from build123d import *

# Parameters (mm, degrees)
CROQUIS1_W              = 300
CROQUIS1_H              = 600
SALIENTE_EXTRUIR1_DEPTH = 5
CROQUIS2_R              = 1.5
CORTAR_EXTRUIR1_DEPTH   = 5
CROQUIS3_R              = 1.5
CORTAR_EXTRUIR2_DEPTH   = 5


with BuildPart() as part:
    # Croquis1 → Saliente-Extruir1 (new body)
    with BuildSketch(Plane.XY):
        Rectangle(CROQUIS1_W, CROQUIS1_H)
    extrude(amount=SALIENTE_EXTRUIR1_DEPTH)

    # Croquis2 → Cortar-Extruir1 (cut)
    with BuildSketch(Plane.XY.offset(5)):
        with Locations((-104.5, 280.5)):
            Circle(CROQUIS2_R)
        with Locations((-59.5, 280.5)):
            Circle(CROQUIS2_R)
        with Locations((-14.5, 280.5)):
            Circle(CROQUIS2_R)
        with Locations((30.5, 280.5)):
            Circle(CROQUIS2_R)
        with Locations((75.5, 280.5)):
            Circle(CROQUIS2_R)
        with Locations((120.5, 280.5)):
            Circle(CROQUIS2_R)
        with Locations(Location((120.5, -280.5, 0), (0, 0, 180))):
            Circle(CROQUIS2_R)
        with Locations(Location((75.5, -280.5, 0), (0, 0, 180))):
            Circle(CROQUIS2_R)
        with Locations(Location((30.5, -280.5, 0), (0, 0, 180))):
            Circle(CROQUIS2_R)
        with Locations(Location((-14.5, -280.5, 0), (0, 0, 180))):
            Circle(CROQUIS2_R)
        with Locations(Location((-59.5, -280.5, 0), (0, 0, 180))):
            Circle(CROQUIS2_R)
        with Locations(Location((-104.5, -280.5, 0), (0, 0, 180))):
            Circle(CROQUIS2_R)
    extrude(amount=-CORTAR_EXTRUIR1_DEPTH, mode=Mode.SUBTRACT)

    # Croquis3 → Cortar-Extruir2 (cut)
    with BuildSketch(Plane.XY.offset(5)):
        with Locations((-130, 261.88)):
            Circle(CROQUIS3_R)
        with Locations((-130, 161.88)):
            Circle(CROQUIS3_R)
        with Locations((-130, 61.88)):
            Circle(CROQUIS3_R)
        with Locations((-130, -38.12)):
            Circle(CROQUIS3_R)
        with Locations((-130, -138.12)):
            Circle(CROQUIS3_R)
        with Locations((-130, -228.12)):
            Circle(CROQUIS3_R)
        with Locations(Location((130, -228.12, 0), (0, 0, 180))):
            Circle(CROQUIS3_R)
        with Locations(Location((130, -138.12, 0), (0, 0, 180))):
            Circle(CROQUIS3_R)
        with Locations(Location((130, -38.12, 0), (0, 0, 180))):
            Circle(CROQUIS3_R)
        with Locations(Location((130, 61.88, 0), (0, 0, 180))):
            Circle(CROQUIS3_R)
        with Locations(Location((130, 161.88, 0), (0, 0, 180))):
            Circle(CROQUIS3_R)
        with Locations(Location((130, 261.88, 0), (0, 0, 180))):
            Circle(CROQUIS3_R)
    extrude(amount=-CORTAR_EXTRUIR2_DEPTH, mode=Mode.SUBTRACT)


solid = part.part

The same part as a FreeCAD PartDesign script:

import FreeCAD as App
import Part
import Sketcher


def add_polygon(sketch, points):
    """Adds a closed chain of lines whose ends are joined by coincident constraints."""
    first, n = sketch.GeometryCount, len(points)
    for a, b in zip(points, points[1:] + points[:1]):
        sketch.addGeometry(Part.LineSegment(App.Vector(*a, 0), App.Vector(*b, 0)), False)
    for i in range(n):
        sketch.addConstraint(Sketcher.Constraint("Coincident", first + i, 2, first + (i + 1) % n, 1))

doc = App.newDocument("Part")
body = doc.addObject("PartDesign::Body", "Body")

# Sketch on XY plane
sketch1 = body.newObject("Sketcher::SketchObject", "Sketch")
sketch1.AttachmentSupport = (doc.getObject("XY_Plane"), [""])
sketch1.MapMode = "FlatFace"
add_polygon(sketch1, [(-150, 300), (-150, -300), (150, -300), (150, 300)])  # lines 0-3
sketch1.addConstraint([
    Sketcher.Constraint("Vertical", 0),
    Sketcher.Constraint("Horizontal", 1),
    Sketcher.Constraint("Vertical", 2),
    Sketcher.Constraint("Horizontal", 3),
    Sketcher.Constraint("Symmetric", 0, 2, 2, 2, -1, 1),
    Sketcher.Constraint("DistanceX", 1, 1, 1, 2, 300.0),
    Sketcher.Constraint("DistanceY", 0, 2, 0, 1, 600.0),
])
pad1 = body.newObject("PartDesign::Pad", "Pad")
pad1.Profile = sketch1
pad1.Length = 5

# Sketch on XY plane
sketch2 = body.newObject("Sketcher::SketchObject", "Sketch001")
sketch2.AttachmentSupport = (doc.getObject("XY_Plane"), [""])
sketch2.MapMode = "FlatFace"
sketch2.AttachmentOffset = App.Placement(App.Vector(0, 0, 5), App.Rotation())
sketch2.addGeometry([
    Part.Circle(App.Vector(-104.5, 280.5, 0), App.Vector(0, 0, 1), 1.5),  # 0
    Part.Circle(App.Vector(-59.5, 280.5, 0), App.Vector(0, 0, 1), 1.5),  # 1
    Part.Circle(App.Vector(-14.5, 280.5, 0), App.Vector(0, 0, 1), 1.5),  # 2
    Part.Circle(App.Vector(30.5, 280.5, 0), App.Vector(0, 0, 1), 1.5),  # 3
    Part.Circle(App.Vector(75.5, 280.5, 0), App.Vector(0, 0, 1), 1.5),  # 4
    Part.Circle(App.Vector(120.5, 280.5, 0), App.Vector(0, 0, 1), 1.5),  # 5
    Part.Circle(App.Vector(120.5, -280.5, 0), App.Vector(0, 0, 1), 1.5),  # 6
    Part.Circle(App.Vector(75.5, -280.5, 0), App.Vector(0, 0, 1), 1.5),  # 7
    Part.Circle(App.Vector(30.5, -280.5, 0), App.Vector(0, 0, 1), 1.5),  # 8
    Part.Circle(App.Vector(-14.5, -280.5, 0), App.Vector(0, 0, 1), 1.5),  # 9
    Part.Circle(App.Vector(-59.5, -280.5, 0), App.Vector(0, 0, 1), 1.5),  # 10
    Part.Circle(App.Vector(-104.5, -280.5, 0), App.Vector(0, 0, 1), 1.5),  # 11
], False)
sketch2.addConstraint([
    Sketcher.Constraint("Equal", 0, 1),
    Sketcher.Constraint("Equal", 1, 2),
    Sketcher.Constraint("Equal", 2, 3),
    Sketcher.Constraint("Equal", 3, 4),
    Sketcher.Constraint("Equal", 4, 5),
    Sketcher.Constraint("Equal", 5, 6),
    Sketcher.Constraint("Equal", 6, 7),
    Sketcher.Constraint("Equal", 7, 8),
    Sketcher.Constraint("Equal", 8, 9),
    Sketcher.Constraint("Equal", 9, 10),
    Sketcher.Constraint("Equal", 10, 11),
    Sketcher.Constraint("Symmetric", 5, 3, 6, 3, -1),
    Sketcher.Constraint("Symmetric", 4, 3, 7, 3, -1),
    Sketcher.Constraint("Symmetric", 3, 3, 8, 3, -1),
    Sketcher.Constraint("Symmetric", 2, 3, 9, 3, -1),
    Sketcher.Constraint("Symmetric", 1, 3, 10, 3, -1),
    Sketcher.Constraint("Symmetric", 0, 3, 11, 3, -1),
    Sketcher.Constraint("Horizontal", 0, 3, 1, 3),
    Sketcher.Constraint("Horizontal", 1, 3, 2, 3),
    Sketcher.Constraint("Horizontal", 2, 3, 3, 3),
    Sketcher.Constraint("Horizontal", 3, 3, 4, 3),
    Sketcher.Constraint("Horizontal", 4, 3, 5, 3),
    Sketcher.Constraint("Diameter", 0, 3.0),
    Sketcher.Constraint("DistanceX", 0, 3, 1, 3, 45.0),
    Sketcher.Constraint("DistanceX", 1, 3, 2, 3, 45.0),
    Sketcher.Constraint("DistanceX", 2, 3, 3, 3, 45.0),
    Sketcher.Constraint("DistanceX", 3, 3, 4, 3, 45.0),
    Sketcher.Constraint("DistanceX", 4, 3, 5, 3, 45.0),
    Sketcher.Constraint("DistanceY", 6, 3, 5, 3, 561.0),
    Sketcher.Constraint("DistanceX", 0, 3, -1, 1, 104.5),
])
pocket1 = body.newObject("PartDesign::Pocket", "Pocket")
pocket1.Profile = sketch2
pocket1.Length = 5

# Sketch on XY plane
sketch3 = body.newObject("Sketcher::SketchObject", "Sketch002")
sketch3.AttachmentSupport = (doc.getObject("XY_Plane"), [""])
sketch3.MapMode = "FlatFace"
sketch3.AttachmentOffset = App.Placement(App.Vector(0, 0, 5), App.Rotation())
sketch3.addGeometry([
    Part.Circle(App.Vector(-130, 261.9, 0), App.Vector(0, 0, 1), 1.5),  # 0
    Part.Circle(App.Vector(-130, 161.9, 0), App.Vector(0, 0, 1), 1.5),  # 1
    Part.Circle(App.Vector(-130, 61.9, 0), App.Vector(0, 0, 1), 1.5),  # 2
    Part.Circle(App.Vector(-130, -38.1, 0), App.Vector(0, 0, 1), 1.5),  # 3
    Part.Circle(App.Vector(-130, -138.1, 0), App.Vector(0, 0, 1), 1.5),  # 4
    Part.Circle(App.Vector(-130, -228.1, 0), App.Vector(0, 0, 1), 1.5),  # 5
    Part.Circle(App.Vector(130, -228.1, 0), App.Vector(0, 0, 1), 1.5),  # 6
    Part.Circle(App.Vector(130, -138.1, 0), App.Vector(0, 0, 1), 1.5),  # 7
    Part.Circle(App.Vector(130, -38.1, 0), App.Vector(0, 0, 1), 1.5),  # 8
    Part.Circle(App.Vector(130, 61.9, 0), App.Vector(0, 0, 1), 1.5),  # 9
    Part.Circle(App.Vector(130, 161.9, 0), App.Vector(0, 0, 1), 1.5),  # 10
    Part.Circle(App.Vector(130, 261.9, 0), App.Vector(0, 0, 1), 1.5),  # 11
], False)
sketch3.addConstraint([
    Sketcher.Constraint("Equal", 0, 1),
    Sketcher.Constraint("Equal", 1, 2),
    Sketcher.Constraint("Equal", 2, 3),
    Sketcher.Constraint("Equal", 3, 4),
    Sketcher.Constraint("Equal", 4, 5),
    Sketcher.Constraint("Equal", 5, 6),
    Sketcher.Constraint("Equal", 6, 7),
    Sketcher.Constraint("Equal", 7, 8),
    Sketcher.Constraint("Equal", 8, 9),
    Sketcher.Constraint("Equal", 9, 10),
    Sketcher.Constraint("Equal", 10, 11),
    Sketcher.Constraint("Symmetric", 5, 3, 6, 3, -2),
    Sketcher.Constraint("Symmetric", 4, 3, 7, 3, -2),
    Sketcher.Constraint("Symmetric", 3, 3, 8, 3, -2),
    Sketcher.Constraint("Symmetric", 2, 3, 9, 3, -2),
    Sketcher.Constraint("Symmetric", 1, 3, 10, 3, -2),
    Sketcher.Constraint("Symmetric", 0, 3, 11, 3, -2),
    Sketcher.Constraint("Vertical", 0, 3, 1, 3),
    Sketcher.Constraint("Vertical", 1, 3, 2, 3),
    Sketcher.Constraint("Vertical", 2, 3, 3, 3),
    Sketcher.Constraint("Vertical", 3, 3, 4, 3),
    Sketcher.Constraint("Vertical", 4, 3, 5, 3),
    Sketcher.Constraint("Diameter", 0, 3.0),
    Sketcher.Constraint("DistanceX", 0, 3, -1, 1, 130.0),
    Sketcher.Constraint("DistanceY", 1, 3, 0, 3, 100.0),
    Sketcher.Constraint("DistanceY", 2, 3, 1, 3, 100.0),
    Sketcher.Constraint("DistanceY", 3, 3, 2, 3, 100.0),
    Sketcher.Constraint("DistanceY", 4, 3, 3, 3, 100.0),
    Sketcher.Constraint("DistanceY", 5, 3, 4, 3, 90.0),
    Sketcher.Constraint("DistanceY", -1, 1, 0, 3, 261.88),
])
pocket2 = body.newObject("PartDesign::Pocket", "Pocket001")
pocket2.Profile = sketch3
pocket2.Length = 5

doc.recompute()
